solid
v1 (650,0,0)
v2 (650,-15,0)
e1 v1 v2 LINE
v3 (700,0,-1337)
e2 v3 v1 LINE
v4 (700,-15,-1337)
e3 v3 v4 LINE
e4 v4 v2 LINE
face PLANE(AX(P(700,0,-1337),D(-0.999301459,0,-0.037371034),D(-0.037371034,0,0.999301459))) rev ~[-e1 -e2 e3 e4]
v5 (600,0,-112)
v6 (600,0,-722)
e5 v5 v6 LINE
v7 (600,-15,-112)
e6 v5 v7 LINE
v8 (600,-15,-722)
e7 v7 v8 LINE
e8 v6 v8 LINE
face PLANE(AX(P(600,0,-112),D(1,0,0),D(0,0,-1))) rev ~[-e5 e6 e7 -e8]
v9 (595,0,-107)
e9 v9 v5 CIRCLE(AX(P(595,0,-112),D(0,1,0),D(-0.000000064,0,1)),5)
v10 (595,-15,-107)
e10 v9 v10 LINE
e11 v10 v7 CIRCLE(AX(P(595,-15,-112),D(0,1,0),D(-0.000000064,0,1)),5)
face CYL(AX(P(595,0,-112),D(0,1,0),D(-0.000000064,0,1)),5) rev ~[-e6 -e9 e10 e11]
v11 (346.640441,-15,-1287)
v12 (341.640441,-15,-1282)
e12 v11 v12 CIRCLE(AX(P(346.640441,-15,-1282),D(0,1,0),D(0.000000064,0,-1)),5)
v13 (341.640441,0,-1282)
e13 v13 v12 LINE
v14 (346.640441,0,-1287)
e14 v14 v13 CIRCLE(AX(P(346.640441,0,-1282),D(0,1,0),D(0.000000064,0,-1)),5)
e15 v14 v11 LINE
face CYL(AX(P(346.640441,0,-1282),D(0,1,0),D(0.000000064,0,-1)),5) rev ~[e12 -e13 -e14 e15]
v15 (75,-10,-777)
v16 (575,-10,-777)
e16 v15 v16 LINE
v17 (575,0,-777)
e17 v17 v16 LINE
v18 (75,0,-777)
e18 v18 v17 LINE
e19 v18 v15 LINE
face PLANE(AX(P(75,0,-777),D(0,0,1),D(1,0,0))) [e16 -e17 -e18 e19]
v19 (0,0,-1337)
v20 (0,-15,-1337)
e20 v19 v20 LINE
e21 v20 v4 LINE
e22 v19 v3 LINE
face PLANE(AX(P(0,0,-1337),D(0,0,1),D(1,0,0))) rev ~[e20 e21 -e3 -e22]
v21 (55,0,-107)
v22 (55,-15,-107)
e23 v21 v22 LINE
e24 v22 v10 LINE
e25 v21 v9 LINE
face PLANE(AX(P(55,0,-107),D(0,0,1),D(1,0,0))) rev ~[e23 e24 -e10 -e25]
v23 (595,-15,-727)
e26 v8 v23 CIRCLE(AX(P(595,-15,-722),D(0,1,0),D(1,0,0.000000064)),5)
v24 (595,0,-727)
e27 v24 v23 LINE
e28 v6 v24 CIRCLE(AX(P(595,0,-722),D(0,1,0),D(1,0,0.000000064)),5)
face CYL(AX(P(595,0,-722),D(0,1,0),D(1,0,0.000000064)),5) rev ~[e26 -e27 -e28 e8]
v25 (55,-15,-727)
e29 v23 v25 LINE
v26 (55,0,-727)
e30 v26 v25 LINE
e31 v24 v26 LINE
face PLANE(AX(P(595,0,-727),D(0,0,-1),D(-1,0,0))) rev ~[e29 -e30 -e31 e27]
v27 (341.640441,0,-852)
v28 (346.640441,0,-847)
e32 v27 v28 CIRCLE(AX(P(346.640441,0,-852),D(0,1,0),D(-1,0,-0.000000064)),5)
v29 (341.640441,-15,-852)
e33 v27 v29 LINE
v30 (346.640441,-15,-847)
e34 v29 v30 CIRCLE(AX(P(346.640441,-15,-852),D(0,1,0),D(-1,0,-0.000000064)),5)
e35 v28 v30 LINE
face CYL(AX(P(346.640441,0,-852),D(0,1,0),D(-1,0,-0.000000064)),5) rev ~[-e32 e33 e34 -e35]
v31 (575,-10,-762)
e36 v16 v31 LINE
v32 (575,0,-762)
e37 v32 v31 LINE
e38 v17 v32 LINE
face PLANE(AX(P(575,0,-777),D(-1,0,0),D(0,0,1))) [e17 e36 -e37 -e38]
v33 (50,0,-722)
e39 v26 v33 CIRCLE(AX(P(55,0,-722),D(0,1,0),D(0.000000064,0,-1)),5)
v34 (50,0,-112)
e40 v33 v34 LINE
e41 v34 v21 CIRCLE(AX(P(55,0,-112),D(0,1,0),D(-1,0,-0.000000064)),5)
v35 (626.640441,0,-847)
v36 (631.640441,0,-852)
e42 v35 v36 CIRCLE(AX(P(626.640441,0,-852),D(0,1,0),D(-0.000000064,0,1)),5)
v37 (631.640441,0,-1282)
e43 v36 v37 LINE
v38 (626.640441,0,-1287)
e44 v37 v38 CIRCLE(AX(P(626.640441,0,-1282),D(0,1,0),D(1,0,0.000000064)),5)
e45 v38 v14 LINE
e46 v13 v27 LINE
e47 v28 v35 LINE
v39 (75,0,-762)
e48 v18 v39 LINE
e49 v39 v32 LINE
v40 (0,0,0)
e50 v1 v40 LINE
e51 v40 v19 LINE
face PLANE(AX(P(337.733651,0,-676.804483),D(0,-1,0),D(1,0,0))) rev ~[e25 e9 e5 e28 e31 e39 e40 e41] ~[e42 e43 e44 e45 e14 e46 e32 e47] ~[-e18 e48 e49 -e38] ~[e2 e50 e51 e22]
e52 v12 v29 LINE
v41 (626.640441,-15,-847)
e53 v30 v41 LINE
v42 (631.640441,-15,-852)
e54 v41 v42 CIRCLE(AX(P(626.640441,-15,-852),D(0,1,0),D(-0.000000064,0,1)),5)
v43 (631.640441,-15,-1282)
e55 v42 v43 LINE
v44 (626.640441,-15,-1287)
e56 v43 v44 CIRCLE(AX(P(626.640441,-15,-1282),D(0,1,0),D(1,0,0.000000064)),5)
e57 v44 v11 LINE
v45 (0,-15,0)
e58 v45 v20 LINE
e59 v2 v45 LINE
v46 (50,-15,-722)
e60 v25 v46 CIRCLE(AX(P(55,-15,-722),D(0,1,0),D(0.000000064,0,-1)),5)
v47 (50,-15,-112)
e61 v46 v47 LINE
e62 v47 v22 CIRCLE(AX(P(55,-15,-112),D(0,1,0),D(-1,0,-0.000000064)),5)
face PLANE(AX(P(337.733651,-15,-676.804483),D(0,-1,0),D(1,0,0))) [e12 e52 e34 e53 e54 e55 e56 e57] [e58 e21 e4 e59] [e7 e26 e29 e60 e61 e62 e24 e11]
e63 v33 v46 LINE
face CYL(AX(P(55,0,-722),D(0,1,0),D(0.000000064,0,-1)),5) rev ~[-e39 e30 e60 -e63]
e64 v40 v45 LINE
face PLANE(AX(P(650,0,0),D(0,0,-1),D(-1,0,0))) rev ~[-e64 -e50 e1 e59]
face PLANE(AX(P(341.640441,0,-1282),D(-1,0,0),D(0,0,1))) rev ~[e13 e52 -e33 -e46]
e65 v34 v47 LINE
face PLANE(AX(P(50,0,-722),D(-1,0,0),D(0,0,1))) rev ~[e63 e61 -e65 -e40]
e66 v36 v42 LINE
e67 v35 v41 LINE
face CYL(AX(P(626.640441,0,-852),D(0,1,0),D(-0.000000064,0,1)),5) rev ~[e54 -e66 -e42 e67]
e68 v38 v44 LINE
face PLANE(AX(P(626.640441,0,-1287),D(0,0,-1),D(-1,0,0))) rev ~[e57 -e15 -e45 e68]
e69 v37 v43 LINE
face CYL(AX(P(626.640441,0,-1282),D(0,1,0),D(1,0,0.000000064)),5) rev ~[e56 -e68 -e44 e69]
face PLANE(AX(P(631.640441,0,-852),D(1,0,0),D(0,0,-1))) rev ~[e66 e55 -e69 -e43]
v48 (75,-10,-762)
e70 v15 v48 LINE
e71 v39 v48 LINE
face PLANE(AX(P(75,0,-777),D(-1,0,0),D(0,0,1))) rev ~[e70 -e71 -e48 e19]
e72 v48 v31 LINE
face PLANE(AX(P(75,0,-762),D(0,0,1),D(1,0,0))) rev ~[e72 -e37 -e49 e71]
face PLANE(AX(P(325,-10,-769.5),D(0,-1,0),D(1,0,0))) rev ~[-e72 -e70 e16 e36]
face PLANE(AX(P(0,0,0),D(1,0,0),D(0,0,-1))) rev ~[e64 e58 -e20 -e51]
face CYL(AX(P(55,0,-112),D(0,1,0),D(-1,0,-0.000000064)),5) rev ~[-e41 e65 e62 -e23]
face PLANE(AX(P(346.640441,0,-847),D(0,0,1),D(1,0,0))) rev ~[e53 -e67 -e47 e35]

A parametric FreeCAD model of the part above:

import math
import FreeCAD as App
import Part
import Sketcher
Q = App.Units.Quantity


def add_polygon(sketch, points):
    """Adds a closed chain of lines whose ends are joined by coincident constraints."""
    first, n = sketch.GeometryCount, len(points)
    for a, b in zip(points, points[1:] + points[:1]):
        sketch.addGeometry(Part.LineSegment(App.Vector(*a, 0), App.Vector(*b, 0)), False)
    for i in range(n):
        sketch.addConstraint(Sketcher.Constraint("Coincident", first + i, 2, first + (i + 1) % n, 1))

doc = App.newDocument("Part")
body = doc.addObject("PartDesign::Body", "Body")

sketch1 = body.newObject("Sketcher::SketchObject", "Sketch")
sketch1.AttachmentSupport = (doc.getObject("XZ_Plane"), [""])
sketch1.MapMode = "FlatFace"
add_polygon(sketch1, [(650, 0), (0, 0), (0, -1337), (700, -1337)])
sketch1.addGeometry(Part.LineSegment(App.Vector(341.6, -1282, 0), App.Vector(341.6, -852, 0)), False)
sketch1.addGeometry(Part.ArcOfCircle(Part.Circle(App.Vector(346.6, -852, 0), App.Vector(0, 0, 1), 5), math.radians(90), math.radians(180)), False)
sketch1.addGeometry(Part.LineSegment(App.Vector(346.6, -847, 0), App.Vector(626.6, -847, 0)), False)
sketch1.addGeometry(Part.ArcOfCircle(Part.Circle(App.Vector(626.6, -852, 0), App.Vector(0, 0, 1), 5), math.radians(0), math.radians(90)), False)
sketch1.addGeometry(Part.LineSegment(App.Vector(631.6, -852, 0), App.Vector(631.6, -1282, 0)), False)
sketch1.addGeometry(Part.ArcOfCircle(Part.Circle(App.Vector(626.6, -1282, 0), App.Vector(0, 0, 1), 5), math.radians(-90), math.radians(0)), False)
sketch1.addGeometry(Part.LineSegment(App.Vector(626.6, -1287, 0), App.Vector(346.6, -1287, 0)), False)
sketch1.addGeometry(Part.ArcOfCircle(Part.Circle(App.Vector(346.6, -1282, 0), App.Vector(0, 0, 1), 5), math.radians(180), math.radians(270)), False)
sketch1.addGeometry(Part.ArcOfCircle(Part.Circle(App.Vector(55, -112, 0), App.Vector(0, 0, 1), 5), math.radians(90), math.radians(180)), False)
sketch1.addGeometry(Part.LineSegment(App.Vector(55, -107, 0), App.Vector(595, -107, 0)), False)
sketch1.addGeometry(Part.ArcOfCircle(Part.Circle(App.Vector(595, -112, 0), App.Vector(0, 0, 1), 5), math.radians(0), math.radians(90)), False)
sketch1.addGeometry(Part.LineSegment(App.Vector(600, -112, 0), App.Vector(600, -722, 0)), False)
sketch1.addGeometry(Part.ArcOfCircle(Part.Circle(App.Vector(595, -722, 0), App.Vector(0, 0, 1), 5), math.radians(-90), math.radians(0)), False)
sketch1.addGeometry(Part.LineSegment(App.Vector(595, -727, 0), App.Vector(55, -727, 0)), False)
sketch1.addGeometry(Part.ArcOfCircle(Part.Circle(App.Vector(55, -722, 0), App.Vector(0, 0, 1), 5), math.radians(180), math.radians(270)), False)
sketch1.addGeometry(Part.LineSegment(App.Vector(50, -722, 0), App.Vector(50, -112, 0)), False)
sketch1.addConstraint([
    Sketcher.Constraint("Tangent", 4, 2, 5, 2),
    Sketcher.Constraint("Tangent", 5, 1, 6, 1),
    Sketcher.Constraint("Tangent", 6, 2, 7, 2),
    Sketcher.Constraint("Tangent", 7, 1, 8, 1),
    Sketcher.Constraint("Tangent", 8, 2, 9, 2),
    Sketcher.Constraint("Tangent", 9, 1, 10, 1),
    Sketcher.Constraint("Tangent", 10, 2, 11, 2),
    Sketcher.Constraint("Tangent", 11, 1, 4, 1),
    Sketcher.Constraint("Tangent", 12, 1, 13, 1),
    Sketcher.Constraint("Tangent", 13, 2, 14, 2),
    Sketcher.Constraint("Tangent", 14, 1, 15, 1),
    Sketcher.Constraint("Tangent", 15, 2, 16, 2),
    Sketcher.Constraint("Tangent", 16, 1, 17, 1),
    Sketcher.Constraint("Tangent", 17, 2, 18, 2),
    Sketcher.Constraint("Tangent", 18, 1, 19, 1),
    Sketcher.Constraint("Tangent", 19, 2, 12, 2),
    Sketcher.Constraint("Horizontal", 0),
    Sketcher.Constraint("Vertical", 1),
    Sketcher.Constraint("Horizontal", 2),
    Sketcher.Constraint("Vertical", 4),
    Sketcher.Constraint("Horizontal", 6),
    Sketcher.Constraint("Vertical", 8),
    Sketcher.Constraint("Horizontal", 10),
    Sketcher.Constraint("Horizontal", 13),
    Sketcher.Constraint("Vertical", 15),
    Sketcher.Constraint("Horizontal", 17),
    Sketcher.Constraint("Vertical", 19),
    Sketcher.Constraint("Coincident", 0, 2, -1, 1),
    Sketcher.Constraint("Equal", 5, 7),
    Sketcher.Constraint("Equal", 7, 9),
    Sketcher.Constraint("Equal", 9, 11),
    Sketcher.Constraint("Equal", 11, 12),
    Sketcher.Constraint("Equal", 12, 14),
    Sketcher.Constraint("Equal", 14, 16),
    Sketcher.Constraint("Equal", 16, 18),
    Sketcher.Constraint("Radius", 5, Q("5 mm")),
    Sketcher.Constraint("DistanceX", 0, 2, 0, 1, Q("650 mm")),
    Sketcher.Constraint("DistanceX", 2, 1, 2, 2, Q("700 mm")),
    Sketcher.Constraint("DistanceX", 6, 1, 6, 2, Q("280 mm")),
    Sketcher.Constraint("DistanceX", 13, 1, 13, 2, Q("540 mm")),
    Sketcher.Constraint("DistanceY", 1, 2, 1, 1, Q("1337 mm")),
    Sketcher.Constraint("DistanceY", 4, 1, 4, 2, Q("430 mm")),
    Sketcher.Constraint("DistanceY", 15, 2, 15, 1, Q("610 mm")),
    Sketcher.Constraint("DistanceY", 5, 3, -1, 1, Q("852 mm")),
    Sketcher.Constraint("DistanceX", -1, 1, 12, 3, Q("55 mm")),
    Sketcher.Constraint("DistanceY", 12, 3, -1, 1, Q("112 mm")),
    Sketcher.Constraint("DistanceX", -1, 1, 5, 3, Q("346.640441 mm")),
])
pad1 = body.newObject("PartDesign::Pad", "Pad")
pad1.Profile = sketch1
pad1.Length = 15

sketch2 = body.newObject("Sketcher::SketchObject", "Sketch001")
sketch2.AttachmentSupport = (doc.getObject("XZ_Plane"), [""])
sketch2.MapMode = "FlatFace"
add_polygon(sketch2, [(75, -762), (75, -777), (575, -777), (575, -762)])
sketch2.addConstraint([
    Sketcher.Constraint("Vertical", 0),
    Sketcher.Constraint("Horizontal", 1),
    Sketcher.Constraint("Vertical", 2),
    Sketcher.Constraint("Horizontal", 3),
    Sketcher.Constraint("DistanceX", 1, 1, 1, 2, Q("500 mm")),
    Sketcher.Constraint("DistanceY", 0, 2, 0, 1, Q("15 mm")),
    Sketcher.Constraint("DistanceX", -1, 1, 0, 2, Q("75 mm")),
    Sketcher.Constraint("DistanceY", 0, 2, -1, 1, Q("777 mm")),
])
pocket1 = body.newObject("PartDesign::Pocket", "Pocket")
pocket1.Profile = sketch2
pocket1.Length = 10
pocket1.Reversed = True

doc.recompute()
